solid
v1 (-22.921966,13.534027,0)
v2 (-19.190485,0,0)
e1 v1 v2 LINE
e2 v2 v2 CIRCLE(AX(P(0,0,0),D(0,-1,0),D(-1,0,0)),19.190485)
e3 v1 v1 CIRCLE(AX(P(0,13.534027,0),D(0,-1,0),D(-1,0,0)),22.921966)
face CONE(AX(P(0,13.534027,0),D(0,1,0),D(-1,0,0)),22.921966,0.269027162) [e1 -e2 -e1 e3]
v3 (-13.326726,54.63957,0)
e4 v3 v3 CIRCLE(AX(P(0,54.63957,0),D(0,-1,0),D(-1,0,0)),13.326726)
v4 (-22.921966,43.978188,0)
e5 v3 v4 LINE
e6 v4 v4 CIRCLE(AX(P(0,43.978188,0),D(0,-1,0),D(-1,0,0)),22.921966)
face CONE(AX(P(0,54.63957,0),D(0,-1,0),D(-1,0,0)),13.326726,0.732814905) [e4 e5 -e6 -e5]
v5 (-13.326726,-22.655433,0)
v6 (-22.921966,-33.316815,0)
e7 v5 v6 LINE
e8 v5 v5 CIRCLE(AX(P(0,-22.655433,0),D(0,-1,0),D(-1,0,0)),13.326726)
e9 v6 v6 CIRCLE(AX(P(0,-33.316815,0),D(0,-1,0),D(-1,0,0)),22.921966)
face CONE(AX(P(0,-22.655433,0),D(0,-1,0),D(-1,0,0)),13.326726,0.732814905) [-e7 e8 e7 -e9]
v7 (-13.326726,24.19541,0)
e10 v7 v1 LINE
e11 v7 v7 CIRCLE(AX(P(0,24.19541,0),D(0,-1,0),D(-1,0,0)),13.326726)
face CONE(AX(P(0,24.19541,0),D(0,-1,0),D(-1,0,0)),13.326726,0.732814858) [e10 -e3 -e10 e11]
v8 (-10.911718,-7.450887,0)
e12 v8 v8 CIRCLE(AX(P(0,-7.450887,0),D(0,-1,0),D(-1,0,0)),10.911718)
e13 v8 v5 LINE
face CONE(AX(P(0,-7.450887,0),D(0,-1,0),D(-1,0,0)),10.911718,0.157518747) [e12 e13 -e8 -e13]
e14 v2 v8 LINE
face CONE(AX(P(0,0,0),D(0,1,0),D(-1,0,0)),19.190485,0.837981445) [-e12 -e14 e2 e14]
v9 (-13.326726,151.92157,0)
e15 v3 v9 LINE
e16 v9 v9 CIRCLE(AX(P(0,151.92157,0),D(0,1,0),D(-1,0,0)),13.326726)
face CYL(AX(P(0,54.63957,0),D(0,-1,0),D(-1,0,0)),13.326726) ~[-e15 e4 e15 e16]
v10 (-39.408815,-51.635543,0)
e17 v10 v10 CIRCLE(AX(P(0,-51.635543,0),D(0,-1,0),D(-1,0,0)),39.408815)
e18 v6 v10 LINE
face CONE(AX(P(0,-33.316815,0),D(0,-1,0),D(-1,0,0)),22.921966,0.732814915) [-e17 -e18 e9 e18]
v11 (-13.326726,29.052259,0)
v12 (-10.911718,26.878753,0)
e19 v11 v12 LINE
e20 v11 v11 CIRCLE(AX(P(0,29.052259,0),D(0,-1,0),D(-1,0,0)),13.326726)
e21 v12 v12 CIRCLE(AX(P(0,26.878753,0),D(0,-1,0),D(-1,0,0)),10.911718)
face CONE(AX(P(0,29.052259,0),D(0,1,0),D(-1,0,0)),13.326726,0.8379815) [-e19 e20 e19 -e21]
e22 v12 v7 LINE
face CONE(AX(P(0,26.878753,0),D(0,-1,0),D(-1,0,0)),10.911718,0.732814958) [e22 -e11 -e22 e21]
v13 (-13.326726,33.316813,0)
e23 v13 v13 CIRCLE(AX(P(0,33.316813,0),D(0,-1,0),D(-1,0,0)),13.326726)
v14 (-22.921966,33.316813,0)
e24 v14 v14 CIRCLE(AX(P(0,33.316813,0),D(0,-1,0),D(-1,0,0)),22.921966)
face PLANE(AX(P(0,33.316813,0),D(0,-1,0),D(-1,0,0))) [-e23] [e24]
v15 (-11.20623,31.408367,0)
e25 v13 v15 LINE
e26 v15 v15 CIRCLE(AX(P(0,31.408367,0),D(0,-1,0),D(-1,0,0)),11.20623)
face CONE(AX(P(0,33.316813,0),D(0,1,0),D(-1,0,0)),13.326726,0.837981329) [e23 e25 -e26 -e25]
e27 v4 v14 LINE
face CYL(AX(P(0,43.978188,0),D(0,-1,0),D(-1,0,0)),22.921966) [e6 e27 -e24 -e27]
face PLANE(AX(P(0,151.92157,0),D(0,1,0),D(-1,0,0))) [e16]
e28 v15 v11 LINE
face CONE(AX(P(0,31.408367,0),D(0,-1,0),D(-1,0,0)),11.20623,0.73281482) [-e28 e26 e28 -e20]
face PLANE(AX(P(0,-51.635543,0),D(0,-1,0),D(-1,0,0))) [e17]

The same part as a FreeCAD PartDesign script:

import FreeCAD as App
import Part
import Sketcher

V = App.Vector
Q = App.Units.Quantity

doc = App.newDocument("Part")
body = doc.addObject("PartDesign::Body", "Body")

sketch1 = doc.addObject("Sketcher::SketchObject", "Sketch")
body.addObject(sketch1)
sketch1.AttachmentSupport = (doc.XY_Plane, [""])
sketch1.MapMode = "FlatFace"
sketch1.addGeometry(Part.LineSegment(V(0, -51.6, 0), V(0, 54.6, 0)), False)
sketch1.addGeometry(Part.LineSegment(V(0, 54.6, 0), V(-13.3, 54.6, 0)), False)
sketch1.addGeometry(Part.LineSegment(V(-13.3, 54.6, 0), V(-22.9, 44, 0)), False)
sketch1.addGeometry(Part.LineSegment(V(-22.9, 44, 0), V(-22.9, 33.3, 0)), False)
sketch1.addGeometry(Part.LineSegment(V(-22.9, 33.3, 0), V(-13.3, 33.3, 0)), False)
sketch1.addGeometry(Part.LineSegment(V(-13.3, 33.3, 0), V(-11.2, 31.4, 0)), False)
sketch1.addGeometry(Part.LineSegment(V(-11.2, 31.4, 0), V(-13.3, 29.1, 0)), False)
sketch1.addGeometry(Part.LineSegment(V(-13.3, 29.1, 0), V(-10.9, 26.9, 0)), False)
sketch1.addGeometry(Part.LineSegment(V(-10.9, 26.9, 0), V(-13.3, 24.2, 0)), False)
sketch1.addGeometry(Part.LineSegment(V(-13.3, 24.2, 0), V(-22.9, 13.5, 0)), False)
sketch1.addGeometry(Part.LineSegment(V(-22.9, 13.5, 0), V(-19.2, 0, 0)), False)
sketch1.addGeometry(Part.LineSegment(V(-19.2, 0, 0), V(-10.9, -7.5, 0)), False)
sketch1.addGeometry(Part.LineSegment(V(-10.9, -7.5, 0), V(-13.3, -22.7, 0)), False)
sketch1.addGeometry(Part.LineSegment(V(-13.3, -22.7, 0), V(-22.9, -33.3, 0)), False)
sketch1.addGeometry(Part.LineSegment(V(-22.9, -33.3, 0), V(-39.4, -51.6, 0)), False)
sketch1.addGeometry(Part.LineSegment(V(-39.4, -51.6, 0), V(0, -51.6, 0)), False)
sketch1.addConstraint(Sketcher.Constraint("Coincident", 0, 2, 1, 1))
sketch1.addConstraint(Sketcher.Constraint("Coincident", 1, 2, 2, 1))
sketch1.addConstraint(Sketcher.Constraint("Coincident", 2, 2, 3, 1))
sketch1.addConstraint(Sketcher.Constraint("Coincident", 3, 2, 4, 1))
sketch1.addConstraint(Sketcher.Constraint("Coincident", 4, 2, 5, 1))
sketch1.addConstraint(Sketcher.Constraint("Coincident", 5, 2, 6, 1))
sketch1.addConstraint(Sketcher.Constraint("Coincident", 6, 2, 7, 1))
sketch1.addConstraint(Sketcher.Constraint("Coincident", 7, 2, 8, 1))
sketch1.addConstraint(Sketcher.Constraint("Coincident", 8, 2, 9, 1))
sketch1.addConstraint(Sketcher.Constraint("Coincident", 9, 2, 10, 1))
sketch1.addConstraint(Sketcher.Constraint("Coincident", 10, 2, 11, 1))
sketch1.addConstraint(Sketcher.Constraint("Coincident", 11, 2, 12, 1))
sketch1.addConstraint(Sketcher.Constraint("Coincident", 12, 2, 13, 1))
sketch1.addConstraint(Sketcher.Constraint("Coincident", 13, 2, 14, 1))
sketch1.addConstraint(Sketcher.Constraint("Coincident", 14, 2, 15, 1))
sketch1.addConstraint(Sketcher.Constraint("Coincident", 15, 2, 0, 1))
sketch1.addConstraint(Sketcher.Constraint("Vertical", 0))
sketch1.addConstraint(Sketcher.Constraint("Horizontal", 1))
sketch1.addConstraint(Sketcher.Constraint("Vertical", 3))
sketch1.addConstraint(Sketcher.Constraint("Horizontal", 4))
sketch1.addConstraint(Sketcher.Constraint("Horizontal", 15))
sketch1.addConstraint(Sketcher.Constraint("Symmetric", 3, 2, 13, 2, -1))
sketch1.addConstraint(Sketcher.Constraint("PointOnObject", 0, 2, -2))
sketch1.addConstraint(Sketcher.Constraint("PointOnObject", 10, 2, -1))
sketch1.addConstraint(Sketcher.Constraint("Perpendicular", 2, 5))
sketch1.addConstraint(Sketcher.Constraint("Perpendicular", 5, 6))
sketch1.addConstraint(Sketcher.Constraint("Perpendicular", 6, 7))
sketch1.addConstraint(Sketcher.Constraint("Perpendicular", 7, 8))
sketch1.addConstraint(Sketcher.Constraint("Parallel", 8, 9))
sketch1.addConstraint(Sketcher.Constraint("Perpendicular", 9, 11))
sketch1.addConstraint(Sketcher.Constraint("Perpendicular", 11, 13))
sketch1.addConstraint(Sketcher.Constraint("Parallel", 13, 14))
sketch1.addConstraint(Sketcher.Constraint("Vertical", 1, 2, 4, 2))
sketch1.addConstraint(Sketcher.Constraint("Vertical", 4, 2, 6, 2))
sketch1.addConstraint(Sketcher.Constraint("Vertical", 6, 2, 8, 2))
sketch1.addConstraint(Sketcher.Constraint("Vertical", 3, 2, 9, 2))
sketch1.addConstraint(Sketcher.Constraint("Vertical", 7, 2, 11, 2))
sketch1.addConstraint(Sketcher.Constraint("Vertical", 8, 2, 12, 2))
sketch1.addConstraint(Sketcher.Constraint("DistanceX", 4, 1, 4, 2, Q("9.59524 mm")))
sketch1.addConstraint(Sketcher.Constraint("Distance", 2, Q("14.34342 mm")))
sketch1.addConstraint(Sketcher.Constraint("Distance", 6, Q("3.169818 mm")))
sketch1.addConstraint(Sketcher.Constraint("Distance", 7, Q("3.24906 mm")))
sketch1.addConstraint(Sketcher.Constraint("Distance", 10, Q("14.039011 mm")))
sketch1.addConstraint(Sketcher.Constraint("Distance", 11, Q("11.13794 mm")))
sketch1.addConstraint(Sketcher.Constraint("DistanceX", 1, 2, 1, 1, Q("13.326726 mm")))
sketch1.addConstraint(Sketcher.Constraint("DistanceX", 15, 1, 15, 2, Q("39.408815 mm")))
sketch1.addConstraint(Sketcher.Constraint("DistanceY", 0, 1, 0, 2, Q("106.275113 mm")))
revolution = doc.addObject("PartDesign::Revolution", "Revolution")
body.addObject(revolution)
revolution.Profile = sketch1
revolution.ReferenceAxis = (sketch1, ["V_Axis"])
revolution.Angle = 360

sketch2 = doc.addObject("Sketcher::SketchObject", "Sketch001")
body.addObject(sketch2)
sketch2.AttachmentSupport = (doc.XZ_Plane, [""])
sketch2.MapMode = "FlatFace"
sketch2.AttachmentOffset = App.Placement(V(0, 0, -54.63957), App.Rotation())
sketch2.addGeometry(Part.Circle(V(0, 0, 0), V(0, 0, 1), 13), False)
sketch2.addConstraint(Sketcher.Constraint("Coincident", 0, 3, -1, 1))
sketch2.addConstraint(Sketcher.Constraint("Diameter", 0, Q("26.653452 mm")))
pad1 = doc.addObject("PartDesign::Pad", "Pad")
body.addObject(pad1)
pad1.Profile = sketch2
pad1.Length = Q("3.83 in")
pad1.Reversed = True

doc.recompute()
